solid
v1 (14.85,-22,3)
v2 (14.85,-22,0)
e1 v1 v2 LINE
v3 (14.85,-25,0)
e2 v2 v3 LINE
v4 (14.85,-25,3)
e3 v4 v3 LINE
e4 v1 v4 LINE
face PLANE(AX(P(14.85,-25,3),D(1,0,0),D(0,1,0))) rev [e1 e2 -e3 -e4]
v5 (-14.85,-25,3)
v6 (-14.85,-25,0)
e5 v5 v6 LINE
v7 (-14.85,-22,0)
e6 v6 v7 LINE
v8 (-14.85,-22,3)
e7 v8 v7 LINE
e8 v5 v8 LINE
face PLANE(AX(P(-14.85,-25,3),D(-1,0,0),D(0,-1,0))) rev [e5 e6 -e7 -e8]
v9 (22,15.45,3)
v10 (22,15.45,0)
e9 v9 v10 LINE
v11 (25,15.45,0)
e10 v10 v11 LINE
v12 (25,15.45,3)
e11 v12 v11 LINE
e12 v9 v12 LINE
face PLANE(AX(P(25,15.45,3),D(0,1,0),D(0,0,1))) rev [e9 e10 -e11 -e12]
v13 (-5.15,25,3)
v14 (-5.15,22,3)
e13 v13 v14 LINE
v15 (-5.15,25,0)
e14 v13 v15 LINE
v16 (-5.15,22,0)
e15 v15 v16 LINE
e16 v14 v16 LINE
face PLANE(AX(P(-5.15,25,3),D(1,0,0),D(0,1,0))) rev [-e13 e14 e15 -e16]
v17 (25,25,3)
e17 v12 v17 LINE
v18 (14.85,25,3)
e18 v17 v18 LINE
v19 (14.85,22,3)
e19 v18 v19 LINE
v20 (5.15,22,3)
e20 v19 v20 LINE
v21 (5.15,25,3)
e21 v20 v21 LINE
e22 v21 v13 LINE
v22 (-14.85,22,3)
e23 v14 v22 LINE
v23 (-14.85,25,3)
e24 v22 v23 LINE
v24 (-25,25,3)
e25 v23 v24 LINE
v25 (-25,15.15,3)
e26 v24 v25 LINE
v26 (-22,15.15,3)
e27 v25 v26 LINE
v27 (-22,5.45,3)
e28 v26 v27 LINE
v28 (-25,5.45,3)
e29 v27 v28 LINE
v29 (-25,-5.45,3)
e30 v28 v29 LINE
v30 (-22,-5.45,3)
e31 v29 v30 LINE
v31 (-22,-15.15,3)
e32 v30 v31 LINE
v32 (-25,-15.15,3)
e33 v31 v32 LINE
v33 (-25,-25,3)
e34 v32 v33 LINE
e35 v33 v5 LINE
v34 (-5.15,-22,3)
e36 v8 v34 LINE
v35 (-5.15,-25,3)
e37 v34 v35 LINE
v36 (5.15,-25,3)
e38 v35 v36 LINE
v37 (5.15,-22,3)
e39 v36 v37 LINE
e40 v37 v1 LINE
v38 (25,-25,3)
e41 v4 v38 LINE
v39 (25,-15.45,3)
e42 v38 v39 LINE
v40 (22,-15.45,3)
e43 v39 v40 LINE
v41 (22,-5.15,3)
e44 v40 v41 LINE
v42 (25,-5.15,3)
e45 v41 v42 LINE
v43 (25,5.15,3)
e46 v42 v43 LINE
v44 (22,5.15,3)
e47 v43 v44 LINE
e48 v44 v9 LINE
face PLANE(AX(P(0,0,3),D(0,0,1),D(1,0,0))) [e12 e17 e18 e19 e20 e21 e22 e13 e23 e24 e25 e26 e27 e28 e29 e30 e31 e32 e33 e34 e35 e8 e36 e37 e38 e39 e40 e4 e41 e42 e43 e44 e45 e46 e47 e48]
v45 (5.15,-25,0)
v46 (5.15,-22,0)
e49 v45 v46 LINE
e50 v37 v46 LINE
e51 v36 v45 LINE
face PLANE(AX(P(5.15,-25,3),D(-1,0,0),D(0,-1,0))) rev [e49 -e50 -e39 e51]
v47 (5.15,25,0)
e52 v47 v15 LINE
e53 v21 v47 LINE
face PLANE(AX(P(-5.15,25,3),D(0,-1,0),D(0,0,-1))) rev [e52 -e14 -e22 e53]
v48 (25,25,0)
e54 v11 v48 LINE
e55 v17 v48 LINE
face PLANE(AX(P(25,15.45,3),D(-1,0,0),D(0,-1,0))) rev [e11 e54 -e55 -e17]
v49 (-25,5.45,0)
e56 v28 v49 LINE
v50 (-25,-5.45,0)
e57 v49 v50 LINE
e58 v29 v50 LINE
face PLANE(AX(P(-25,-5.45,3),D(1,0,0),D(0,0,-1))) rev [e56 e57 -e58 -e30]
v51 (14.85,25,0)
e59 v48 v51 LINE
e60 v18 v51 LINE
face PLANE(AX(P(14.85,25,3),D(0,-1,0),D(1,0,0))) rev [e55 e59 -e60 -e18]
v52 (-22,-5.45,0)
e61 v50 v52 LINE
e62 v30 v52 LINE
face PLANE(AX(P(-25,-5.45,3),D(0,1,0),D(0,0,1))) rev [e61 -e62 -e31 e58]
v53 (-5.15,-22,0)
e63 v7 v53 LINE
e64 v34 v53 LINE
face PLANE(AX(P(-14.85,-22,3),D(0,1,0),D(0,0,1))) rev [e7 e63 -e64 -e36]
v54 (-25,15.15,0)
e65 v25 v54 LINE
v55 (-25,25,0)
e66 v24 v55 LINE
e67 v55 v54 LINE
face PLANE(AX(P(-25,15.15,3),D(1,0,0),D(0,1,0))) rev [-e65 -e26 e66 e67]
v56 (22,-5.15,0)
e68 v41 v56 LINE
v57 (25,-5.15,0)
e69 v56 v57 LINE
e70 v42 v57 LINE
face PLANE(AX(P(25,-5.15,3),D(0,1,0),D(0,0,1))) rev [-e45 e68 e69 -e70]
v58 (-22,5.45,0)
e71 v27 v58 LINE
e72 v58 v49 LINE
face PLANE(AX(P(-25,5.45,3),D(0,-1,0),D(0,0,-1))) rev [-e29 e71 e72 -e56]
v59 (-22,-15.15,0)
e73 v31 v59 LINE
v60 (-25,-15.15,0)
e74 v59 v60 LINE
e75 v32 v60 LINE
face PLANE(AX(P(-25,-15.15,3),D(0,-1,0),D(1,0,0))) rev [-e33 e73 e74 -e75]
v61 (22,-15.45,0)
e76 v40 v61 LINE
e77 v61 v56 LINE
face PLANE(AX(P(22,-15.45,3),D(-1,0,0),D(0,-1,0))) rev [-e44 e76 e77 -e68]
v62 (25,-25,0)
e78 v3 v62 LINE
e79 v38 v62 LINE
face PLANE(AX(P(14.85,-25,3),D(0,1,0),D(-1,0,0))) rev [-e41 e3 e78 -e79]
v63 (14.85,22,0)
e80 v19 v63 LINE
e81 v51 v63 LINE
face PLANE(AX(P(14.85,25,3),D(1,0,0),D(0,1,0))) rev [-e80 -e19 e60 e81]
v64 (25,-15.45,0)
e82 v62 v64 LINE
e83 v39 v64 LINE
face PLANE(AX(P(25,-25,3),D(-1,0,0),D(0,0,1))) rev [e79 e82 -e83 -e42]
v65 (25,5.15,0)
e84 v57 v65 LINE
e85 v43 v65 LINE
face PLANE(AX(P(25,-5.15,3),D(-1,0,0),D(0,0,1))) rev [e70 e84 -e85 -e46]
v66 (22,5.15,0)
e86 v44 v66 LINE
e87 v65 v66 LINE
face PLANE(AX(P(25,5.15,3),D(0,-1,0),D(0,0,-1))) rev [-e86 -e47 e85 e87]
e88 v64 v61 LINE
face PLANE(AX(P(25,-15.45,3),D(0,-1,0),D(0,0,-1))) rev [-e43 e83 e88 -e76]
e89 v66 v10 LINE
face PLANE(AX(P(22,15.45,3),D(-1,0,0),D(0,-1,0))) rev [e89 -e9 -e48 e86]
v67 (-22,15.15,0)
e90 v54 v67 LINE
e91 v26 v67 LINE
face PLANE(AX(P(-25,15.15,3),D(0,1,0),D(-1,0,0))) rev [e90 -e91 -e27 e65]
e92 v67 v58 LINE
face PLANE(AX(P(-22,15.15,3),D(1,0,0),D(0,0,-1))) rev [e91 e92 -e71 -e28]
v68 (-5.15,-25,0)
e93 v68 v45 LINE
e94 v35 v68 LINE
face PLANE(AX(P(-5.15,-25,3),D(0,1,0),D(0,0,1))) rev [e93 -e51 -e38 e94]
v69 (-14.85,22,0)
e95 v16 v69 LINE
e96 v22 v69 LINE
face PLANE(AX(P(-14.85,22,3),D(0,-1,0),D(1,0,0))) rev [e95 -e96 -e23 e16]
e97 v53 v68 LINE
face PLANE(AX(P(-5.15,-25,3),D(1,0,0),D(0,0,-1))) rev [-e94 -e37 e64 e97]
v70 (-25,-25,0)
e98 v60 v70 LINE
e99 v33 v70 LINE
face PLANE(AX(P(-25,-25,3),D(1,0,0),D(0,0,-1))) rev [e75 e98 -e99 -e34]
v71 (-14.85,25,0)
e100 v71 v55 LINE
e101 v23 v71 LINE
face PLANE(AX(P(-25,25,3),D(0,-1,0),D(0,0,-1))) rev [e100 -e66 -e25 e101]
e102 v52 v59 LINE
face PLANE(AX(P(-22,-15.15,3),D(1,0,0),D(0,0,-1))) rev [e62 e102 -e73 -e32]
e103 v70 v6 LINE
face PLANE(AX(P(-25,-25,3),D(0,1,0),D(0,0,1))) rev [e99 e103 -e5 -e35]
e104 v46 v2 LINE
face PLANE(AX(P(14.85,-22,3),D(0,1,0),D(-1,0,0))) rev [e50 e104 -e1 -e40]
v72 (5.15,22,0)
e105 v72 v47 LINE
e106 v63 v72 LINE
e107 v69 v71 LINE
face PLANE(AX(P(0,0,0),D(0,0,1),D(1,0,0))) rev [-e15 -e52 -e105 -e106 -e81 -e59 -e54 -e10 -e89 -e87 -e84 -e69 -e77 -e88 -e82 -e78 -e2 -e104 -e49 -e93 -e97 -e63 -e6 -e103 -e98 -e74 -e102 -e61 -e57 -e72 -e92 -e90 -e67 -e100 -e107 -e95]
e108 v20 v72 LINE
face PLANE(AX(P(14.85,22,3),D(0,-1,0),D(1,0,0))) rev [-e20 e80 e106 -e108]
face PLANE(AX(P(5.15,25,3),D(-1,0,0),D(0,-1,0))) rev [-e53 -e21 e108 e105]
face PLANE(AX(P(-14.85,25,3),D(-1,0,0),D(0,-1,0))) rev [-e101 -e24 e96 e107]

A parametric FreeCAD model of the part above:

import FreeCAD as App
import Part
import Sketcher

V = App.Vector
Q = App.Units.Quantity


def add_polygon(sketch, points):
    """Adds a closed chain of lines whose ends are joined by coincident constraints."""
    first, n = sketch.GeometryCount, len(points)
    for a, b in zip(points, points[1:] + points[:1]):
        sketch.addGeometry(Part.LineSegment(App.Vector(*a, 0), App.Vector(*b, 0)), False)
    for i in range(n):
        sketch.addConstraint(Sketcher.Constraint("Coincident", first + i, 2, first + (i + 1) % n, 1))

doc = App.newDocument("Part")
body = doc.addObject("PartDesign::Body", "Body")

sketch1 = doc.addObject("Sketcher::SketchObject", "Sketch")
body.addObject(sketch1)
sketch1.AttachmentSupport = (doc.XY_Plane, [""])
sketch1.MapMode = "FlatFace"
add_polygon(sketch1, [(-25, -25), (-14.8, -25), (-14.8, -22), (-5.2, -22), (-5.2, -25), (5.2, -25), (5.2, -22), (14.8, -22), (14.8, -25), (25, -25), (25, -15.4), (22, -15.4), (22, -5.2), (25, -5.2), (25, 5.2), (22, 5.2), (22, 15.4), (25, 15.4), (25, 25), (14.8, 25), (14.8, 22), (5.2, 22), (5.2, 25), (-5.2, 25), (-5.2, 22), (-14.8, 22), (-14.8, 25), (-25, 25), (-25, 15.2), (-22, 15.2), (-22, 5.5), (-25, 5.5), (-25, -5.5), (-22, -5.5), (-22, -15.2), (-25, -15.2)])
sketch1.addConstraint(Sketcher.Constraint("Horizontal", 0))
sketch1.addConstraint(Sketcher.Constraint("Vertical", 1))
sketch1.addConstraint(Sketcher.Constraint("Horizontal", 2))
sketch1.addConstraint(Sketcher.Constraint("Vertical", 3))
sketch1.addConstraint(Sketcher.Constraint("Horizontal", 4))
sketch1.addConstraint(Sketcher.Constraint("Vertical", 5))
sketch1.addConstraint(Sketcher.Constraint("Horizontal", 6))
sketch1.addConstraint(Sketcher.Constraint("Vertical", 7))
sketch1.addConstraint(Sketcher.Constraint("Horizontal", 8))
sketch1.addConstraint(Sketcher.Constraint("Vertical", 9))
sketch1.addConstraint(Sketcher.Constraint("Horizontal", 10))
sketch1.addConstraint(Sketcher.Constraint("Vertical", 11))
sketch1.addConstraint(Sketcher.Constraint("Horizontal", 12))
sketch1.addConstraint(Sketcher.Constraint("Vertical", 13))
sketch1.addConstraint(Sketcher.Constraint("Horizontal", 14))
sketch1.addConstraint(Sketcher.Constraint("Vertical", 15))
sketch1.addConstraint(Sketcher.Constraint("Horizontal", 16))
sketch1.addConstraint(Sketcher.Constraint("Vertical", 17))
sketch1.addConstraint(Sketcher.Constraint("Horizontal", 18))
sketch1.addConstraint(Sketcher.Constraint("Vertical", 19))
sketch1.addConstraint(Sketcher.Constraint("Horizontal", 20))
sketch1.addConstraint(Sketcher.Constraint("Vertical", 21))
sketch1.addConstraint(Sketcher.Constraint("Horizontal", 22))
sketch1.addConstraint(Sketcher.Constraint("Vertical", 23))
sketch1.addConstraint(Sketcher.Constraint("Horizontal", 24))
sketch1.addConstraint(Sketcher.Constraint("Vertical", 25))
sketch1.addConstraint(Sketcher.Constraint("Horizontal", 26))
sketch1.addConstraint(Sketcher.Constraint("Vertical", 27))
sketch1.addConstraint(Sketcher.Constraint("Horizontal", 28))
sketch1.addConstraint(Sketcher.Constraint("Vertical", 29))
sketch1.addConstraint(Sketcher.Constraint("Horizontal", 30))
sketch1.addConstraint(Sketcher.Constraint("Vertical", 31))
sketch1.addConstraint(Sketcher.Constraint("Horizontal", 32))
sketch1.addConstraint(Sketcher.Constraint("Vertical", 33))
sketch1.addConstraint(Sketcher.Constraint("Horizontal", 34))
sketch1.addConstraint(Sketcher.Constraint("Vertical", 35))
sketch1.addConstraint(Sketcher.Constraint("Symmetric", 0, 2, 18, 2, -1, 1))
sketch1.addConstraint(Sketcher.Constraint("Symmetric", 2, 2, 20, 2, -1, 1))
sketch1.addConstraint(Sketcher.Constraint("Symmetric", 4, 2, 22, 2, -1, 1))
sketch1.addConstraint(Sketcher.Constraint("Symmetric", 6, 2, 24, 2, -1, 1))
sketch1.addConstraint(Sketcher.Constraint("Symmetric", 8, 2, 26, 2, -1, 1))
sketch1.addConstraint(Sketcher.Constraint("Symmetric", 2, 2, 5, 2, -2))
sketch1.addConstraint(Sketcher.Constraint("Symmetric", 0, 2, 7, 2, -2))
sketch1.addConstraint(Sketcher.Constraint("Symmetric", 11, 2, 14, 2, -1))
sketch1.addConstraint(Sketcher.Constraint("Symmetric", 9, 2, 16, 2, -1))
sketch1.addConstraint(Sketcher.Constraint("Symmetric", 29, 2, 32, 2, -1))
sketch1.addConstraint(Sketcher.Constraint("Symmetric", 27, 2, 34, 2, -1))
sketch1.addConstraint(Sketcher.Constraint("Horizontal", 0, 2, 3, 2))
sketch1.addConstraint(Sketcher.Constraint("Vertical", 9, 2, 12, 2))
sketch1.addConstraint(Sketcher.Constraint("Vertical", 27, 2, 30, 2))
sketch1.addConstraint(Sketcher.Constraint("Equal", 16, 28))
sketch1.addConstraint(Sketcher.Constraint("Equal", 34, 1))
sketch1.addConstraint(Sketcher.Constraint("Equal", 22, 11))
sketch1.addConstraint(Sketcher.Constraint("Equal", 11, 13))
sketch1.addConstraint(Sketcher.Constraint("Equal", 24, 29))
sketch1.addConstraint(Sketcher.Constraint("DistanceX", 10, 2, 10, 1, Q("3 mm")))
sketch1.addConstraint(Sketcher.Constraint("DistanceX", 2, 1, 2, 2, Q("9.7 mm")))
sketch1.addConstraint(Sketcher.Constraint("DistanceX", 4, 1, 4, 2, Q("10.3 mm")))
sketch1.addConstraint(Sketcher.Constraint("DistanceY", 31, 2, 31, 1, Q("10.9 mm")))
sketch1.addConstraint(Sketcher.Constraint("DistanceY", 0, 2, -1, 1, Q("25 mm")))
sketch1.addConstraint(Sketcher.Constraint("DistanceX", -1, 1, 8, 2, Q("25 mm")))
pad1 = doc.addObject("PartDesign::Pad", "Pad")
body.addObject(pad1)
pad1.Profile = sketch1
pad1.Length = 3

doc.recompute()
